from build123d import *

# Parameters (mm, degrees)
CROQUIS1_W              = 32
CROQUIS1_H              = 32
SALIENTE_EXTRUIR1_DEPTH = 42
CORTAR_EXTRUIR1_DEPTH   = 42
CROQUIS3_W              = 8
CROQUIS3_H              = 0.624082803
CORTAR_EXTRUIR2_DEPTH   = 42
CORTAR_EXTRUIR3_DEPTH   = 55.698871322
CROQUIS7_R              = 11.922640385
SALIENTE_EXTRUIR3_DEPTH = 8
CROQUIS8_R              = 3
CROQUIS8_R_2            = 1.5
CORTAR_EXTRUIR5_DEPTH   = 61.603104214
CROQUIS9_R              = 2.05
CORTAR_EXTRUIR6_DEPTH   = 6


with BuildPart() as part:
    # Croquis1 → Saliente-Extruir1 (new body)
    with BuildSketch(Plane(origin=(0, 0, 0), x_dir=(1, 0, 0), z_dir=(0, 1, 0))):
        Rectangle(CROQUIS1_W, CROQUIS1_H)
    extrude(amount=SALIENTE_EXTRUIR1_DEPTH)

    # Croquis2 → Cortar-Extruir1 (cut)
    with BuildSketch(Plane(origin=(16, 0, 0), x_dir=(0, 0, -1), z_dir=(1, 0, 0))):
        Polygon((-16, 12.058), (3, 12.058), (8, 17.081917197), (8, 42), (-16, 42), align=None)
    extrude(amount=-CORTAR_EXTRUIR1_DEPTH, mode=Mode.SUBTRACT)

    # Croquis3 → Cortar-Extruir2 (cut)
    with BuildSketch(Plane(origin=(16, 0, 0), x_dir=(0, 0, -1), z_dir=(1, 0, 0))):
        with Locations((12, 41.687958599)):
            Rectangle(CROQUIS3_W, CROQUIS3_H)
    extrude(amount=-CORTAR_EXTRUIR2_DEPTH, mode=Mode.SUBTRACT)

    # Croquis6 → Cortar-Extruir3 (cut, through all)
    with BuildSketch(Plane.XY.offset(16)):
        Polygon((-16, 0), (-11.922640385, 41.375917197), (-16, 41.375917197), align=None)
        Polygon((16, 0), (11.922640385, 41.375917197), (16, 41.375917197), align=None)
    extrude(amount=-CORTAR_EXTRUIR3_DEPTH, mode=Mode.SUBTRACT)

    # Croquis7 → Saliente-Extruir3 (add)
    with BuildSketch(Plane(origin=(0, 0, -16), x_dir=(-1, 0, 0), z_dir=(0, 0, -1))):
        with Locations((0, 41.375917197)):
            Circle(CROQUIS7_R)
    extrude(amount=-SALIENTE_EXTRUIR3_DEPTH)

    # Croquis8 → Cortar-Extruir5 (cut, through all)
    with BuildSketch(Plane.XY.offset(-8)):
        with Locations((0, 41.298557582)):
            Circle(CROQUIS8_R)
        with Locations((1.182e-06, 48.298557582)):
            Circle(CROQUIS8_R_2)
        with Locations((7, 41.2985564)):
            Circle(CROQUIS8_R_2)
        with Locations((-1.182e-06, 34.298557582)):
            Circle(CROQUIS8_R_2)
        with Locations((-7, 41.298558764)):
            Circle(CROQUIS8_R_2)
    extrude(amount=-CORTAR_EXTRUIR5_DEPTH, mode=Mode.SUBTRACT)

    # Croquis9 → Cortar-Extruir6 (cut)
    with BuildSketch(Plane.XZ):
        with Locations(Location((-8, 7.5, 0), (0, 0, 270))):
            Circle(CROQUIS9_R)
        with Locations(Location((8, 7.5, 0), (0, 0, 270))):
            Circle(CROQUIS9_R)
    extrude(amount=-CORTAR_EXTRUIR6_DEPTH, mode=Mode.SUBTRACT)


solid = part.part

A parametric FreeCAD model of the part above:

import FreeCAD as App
import Part
import Sketcher

doc = App.newDocument("Part")
body = doc.addObject("PartDesign::Body", "Body")

sketch1 = body.newObject("Sketcher::SketchObject", "Sketch")
sketch1.AttachmentSupport = (doc.getObject("XZ_Plane"), [""])
sketch1.MapMode = "FlatFace"
sketch1.addGeometry(Part.LineSegment(App.Vector(-16, -16, 0), App.Vector(-16, 16, 0)), False)
sketch1.addGeometry(Part.LineSegment(App.Vector(-16, 16, 0), App.Vector(16, 16, 0)), False)
sketch1.addGeometry(Part.LineSegment(App.Vector(16, 16, 0), App.Vector(16, -16, 0)), False)
sketch1.addGeometry(Part.LineSegment(App.Vector(16, -16, 0), App.Vector(-16, -16, 0)), False)
sketch1.addConstraint(Sketcher.Constraint("Coincident", 0, 2, 1, 1))
sketch1.addConstraint(Sketcher.Constraint("Coincident", 1, 2, 2, 1))
sketch1.addConstraint(Sketcher.Constraint("Coincident", 2, 2, 3, 1))
sketch1.addConstraint(Sketcher.Constraint("Coincident", 3, 2, 0, 1))
sketch1.addConstraint(Sketcher.Constraint("Vertical", 0))
sketch1.addConstraint(Sketcher.Constraint("Horizontal", 1))
sketch1.addConstraint(Sketcher.Constraint("Vertical", 2))
sketch1.addConstraint(Sketcher.Constraint("Horizontal", 3))
sketch1.addConstraint(Sketcher.Constraint("Symmetric", 0, 2, 2, 2, -1, 1))
sketch1.addConstraint(Sketcher.Constraint("Equal", 3, 0))
sketch1.addConstraint(Sketcher.Constraint("DistanceX", 1, 1, 1, 2, 32.0))
pad1 = body.newObject("PartDesign::Pad", "Pad")
pad1.Profile = sketch1
pad1.Length = 42
pad1.Reversed = True

sketch2 = body.newObject("Sketcher::SketchObject", "Sketch001")
sketch2.AttachmentSupport = (doc.getObject("YZ_Plane"), [""])
sketch2.MapMode = "FlatFace"
sketch2.AttachmentOffset = App.Placement(App.Vector(0, 0, 16), App.Rotation())
sketch2.addGeometry(Part.LineSegment(App.Vector(12, 16, 0), App.Vector(12, -3, 0)), False)
sketch2.addGeometry(Part.LineSegment(App.Vector(12, -3, 0), App.Vector(17, -8, 0)), False)
sketch2.addGeometry(Part.LineSegment(App.Vector(17, -8, 0), App.Vector(42, -8, 0)), False)
sketch2.addGeometry(Part.LineSegment(App.Vector(42, -8, 0), App.Vector(42, 16, 0)), False)
sketch2.addGeometry(Part.LineSegment(App.Vector(42, 16, 0), App.Vector(12, 16, 0)), False)
sketch2.addConstraint(Sketcher.Constraint("Coincident", 0, 2, 1, 1))
sketch2.addConstraint(Sketcher.Constraint("Coincident", 1, 2, 2, 1))
sketch2.addConstraint(Sketcher.Constraint("Coincident", 2, 2, 3, 1))
sketch2.addConstraint(Sketcher.Constraint("Coincident", 3, 2, 4, 1))
sketch2.addConstraint(Sketcher.Constraint("Coincident", 4, 2, 0, 1))
sketch2.addConstraint(Sketcher.Constraint("Vertical", 0))
sketch2.addConstraint(Sketcher.Constraint("Horizontal", 2))
sketch2.addConstraint(Sketcher.Constraint("Vertical", 3))
sketch2.addConstraint(Sketcher.Constraint("Horizontal", 4))
sketch2.addConstraint(Sketcher.Constraint("DistanceY", 0, 2, 0, 1, 19.0))
sketch2.addConstraint(Sketcher.Constraint("DistanceY", 3, 1, 3, 2, 24.0))
sketch2.addConstraint(Sketcher.Constraint("DistanceY", 0, 2, -1, 1, 3.0))
sketch2.addConstraint(Sketcher.Constraint("DistanceX", -1, 1, 2, 2, 42.0))
sketch2.addConstraint(Sketcher.Constraint("DistanceX", 4, 2, 4, 1, 29.942))
sketch2.addConstraint(Sketcher.Constraint("Distance", 1, 7.088))
pocket1 = body.newObject("PartDesign::Pocket", "Pocket")
pocket1.Profile = sketch2
pocket1.Length = 42

sketch3 = body.newObject("Sketcher::SketchObject", "Sketch002")
sketch3.AttachmentSupport = (doc.getObject("YZ_Plane"), [""])
sketch3.MapMode = "FlatFace"
sketch3.AttachmentOffset = App.Placement(App.Vector(0, 0, 16), App.Rotation())
sketch3.addGeometry(Part.LineSegment(App.Vector(42, -8, 0), App.Vector(41.4, -8, 0)), False)
sketch3.addGeometry(Part.LineSegment(App.Vector(41.4, -8, 0), App.Vector(41.4, -16, 0)), False)
sketch3.addGeometry(Part.LineSegment(App.Vector(41.4, -16, 0), App.Vector(42, -16, 0)), False)
sketch3.addGeometry(Part.LineSegment(App.Vector(42, -16, 0), App.Vector(42, -8, 0)), False)
sketch3.addConstraint(Sketcher.Constraint("Coincident", 0, 2, 1, 1))
sketch3.addConstraint(Sketcher.Constraint("Coincident", 1, 2, 2, 1))
sketch3.addConstraint(Sketcher.Constraint("Coincident", 2, 2, 3, 1))
sketch3.addConstraint(Sketcher.Constraint("Coincident", 3, 2, 0, 1))
sketch3.addConstraint(Sketcher.Constraint("Horizontal", 0))
sketch3.addConstraint(Sketcher.Constraint("Vertical", 1))
sketch3.addConstraint(Sketcher.Constraint("Horizontal", 2))
sketch3.addConstraint(Sketcher.Constraint("Vertical", 3))
sketch3.addConstraint(Sketcher.Constraint("DistanceY", 1, 2, 1, 1, 8.0))
sketch3.addConstraint(Sketcher.Constraint("DistanceY", 0, 2, -1, 1, 8.0))
sketch3.addConstraint(Sketcher.Constraint("DistanceX", -1, 1, 2, 2, 42.0))
sketch3.addConstraint(Sketcher.Constraint("DistanceX", 0, 2, 0, 1, 0.624083))
pocket2 = body.newObject("PartDesign::Pocket", "Pocket001")
pocket2.Profile = sketch3
pocket2.Length = 42

sketch4 = body.newObject("Sketcher::SketchObject", "Sketch003")
sketch4.AttachmentSupport = (doc.getObject("XY_Plane"), [""])
sketch4.MapMode = "FlatFace"
sketch4.AttachmentOffset = App.Placement(App.Vector(0, 0, 16), App.Rotation())
sketch4.addGeometry(Part.LineSegment(App.Vector(-16, 0, 0), App.Vector(-11.9, 41.4, 0)), False)
sketch4.addGeometry(Part.LineSegment(App.Vector(-11.9, 41.4, 0), App.Vector(-16, 41.4, 0)), False)
sketch4.addGeometry(Part.LineSegment(App.Vector(-16, 41.4, 0), App.Vector(-16, 0, 0)), False)
sketch4.addGeometry(Part.LineSegment(App.Vector(11.9, 41.4, 0), App.Vector(16, 0, 0)), False)
sketch4.addGeometry(Part.LineSegment(App.Vector(16, 0, 0), App.Vector(16, 41.4, 0)), False)
sketch4.addGeometry(Part.LineSegment(App.Vector(16, 41.4, 0), App.Vector(11.9, 41.4, 0)), False)
sketch4.addConstraint(Sketcher.Constraint("Coincident", 0, 2, 1, 1))
sketch4.addConstraint(Sketcher.Constraint("Coincident", 1, 2, 2, 1))
sketch4.addConstraint(Sketcher.Constraint("Coincident", 2, 2, 0, 1))
sketch4.addConstraint(Sketcher.Constraint("Coincident", 3, 2, 4, 1))
sketch4.addConstraint(Sketcher.Constraint("Coincident", 4, 2, 5, 1))
sketch4.addConstraint(Sketcher.Constraint("Coincident", 5, 2, 3, 1))
sketch4.addConstraint(Sketcher.Constraint("Horizontal", 1))
sketch4.addConstraint(Sketcher.Constraint("Vertical", 2))
sketch4.addConstraint(Sketcher.Constraint("Vertical", 4))
sketch4.addConstraint(Sketcher.Constraint("Horizontal", 5))
sketch4.addConstraint(Sketcher.Constraint("Symmetric", 2, 2, 3, 2, -1, 1))
sketch4.addConstraint(Sketcher.Constraint("Symmetric", 0, 2, 5, 2, -2))
sketch4.addConstraint(Sketcher.Constraint("PointOnObject", 2, 2, -1))
sketch4.addConstraint(Sketcher.Constraint("DistanceX", 1, 2, -1, 1, 16.0))
sketch4.addConstraint(Sketcher.Constraint("DistanceX", 1, 2, 1, 1, 4.07736))
sketch4.addConstraint(Sketcher.Constraint("DistanceY", 2, 2, 2, 1, 41.375917))
pocket3 = body.newObject("PartDesign::Pocket", "Pocket002")
pocket3.Profile = sketch4
pocket3.Type = "ThroughAll"

sketch5 = body.newObject("Sketcher::SketchObject", "Sketch004")
sketch5.AttachmentSupport = (doc.getObject("XY_Plane"), [""])
sketch5.MapMode = "FlatFace"
sketch5.AttachmentOffset = App.Placement(App.Vector(0, 0, -16), App.Rotation())
sketch5.addGeometry(Part.Circle(App.Vector(0, 41, 0), App.Vector(0, 0, 1), 12), False)
sketch5.addConstraint(Sketcher.Constraint("PointOnObject", 0, 3, -2))
sketch5.addConstraint(Sketcher.Constraint("Diameter", 0, 23.845281))
sketch5.addConstraint(Sketcher.Constraint("DistanceY", -1, 1, 0, 3, 41.375917))
pad2 = body.newObject("PartDesign::Pad", "Pad001")
pad2.Profile = sketch5
pad2.Length = 8

sketch6 = body.newObject("Sketcher::SketchObject", "Sketch005")
sketch6.AttachmentSupport = (doc.getObject("XY_Plane"), [""])
sketch6.MapMode = "FlatFace"
sketch6.AttachmentOffset = App.Placement(App.Vector(0, 0, -8), App.Rotation())
sketch6.addGeometry(Part.Circle(App.Vector(0, 41.3, 0), App.Vector(0, 0, 1), 3), False)
sketch6.addGeometry(Part.Circle(App.Vector(0, 48.3, 0), App.Vector(0, 0, 1), 1.5), False)
sketch6.addGeometry(Part.Circle(App.Vector(7, 41.3, 0), App.Vector(0, 0, 1), 1.5), False)
sketch6.addGeometry(Part.Circle(App.Vector(0, 34.3, 0), App.Vector(0, 0, 1), 1.5), False)
sketch6.addGeometry(Part.Circle(App.Vector(-7, 41.3, 0), App.Vector(0, 0, 1), 1.5), False)
sketch6.addConstraint(Sketcher.Constraint("Equal", 1, 2))
sketch6.addConstraint(Sketcher.Constraint("Equal", 2, 3))
sketch6.addConstraint(Sketcher.Constraint("Equal", 3, 4))
sketch6.addConstraint(Sketcher.Constraint("Symmetric", 2, 3, 4, 3, -2))
sketch6.addConstraint(Sketcher.Constraint("PointOnObject", 0, 3, -2))
sketch6.addConstraint(Sketcher.Constraint("PointOnObject", 1, 3, -2))
sketch6.addConstraint(Sketcher.Constraint("PointOnObject", 3, 3, -2))
sketch6.addConstraint(Sketcher.Constraint("Horizontal", 0, 3, 2, 3))
sketch6.addConstraint(Sketcher.Constraint("Diameter", 0, 6.0))
sketch6.addConstraint(Sketcher.Constraint("Diameter", 1, 3.0))
sketch6.addConstraint(Sketcher.Constraint("DistanceX", -1, 1, 2, 3, 7.0))
sketch6.addConstraint(Sketcher.Constraint("DistanceY", 0, 3, 1, 3, 7.0))
sketch6.addConstraint(Sketcher.Constraint("DistanceY", 3, 3, 0, 3, 7.0))
sketch6.addConstraint(Sketcher.Constraint("DistanceY", -1, 1, 4, 3, 41.298559))
pocket4 = body.newObject("PartDesign::Pocket", "Pocket003")
pocket4.Profile = sketch6
pocket4.Type = "ThroughAll"

sketch7 = body.newObject("Sketcher::SketchObject", "Sketch006")
sketch7.AttachmentSupport = (doc.getObject("XZ_Plane"), [""])
sketch7.MapMode = "FlatFace"
sketch7.addGeometry(Part.Circle(App.Vector(-8, 7.5, 0), App.Vector(0, 0, 1), 2), False)
sketch7.addGeometry(Part.Circle(App.Vector(8, 7.5, 0), App.Vector(0, 0, 1), 2), False)
sketch7.addConstraint(Sketcher.Constraint("Equal", 0, 1))
sketch7.addConstraint(Sketcher.Constraint("Symmetric", 0, 3, 1, 3, -2))
sketch7.addConstraint(Sketcher.Constraint("Diameter", 0, 4.1))
sketch7.addConstraint(Sketcher.Constraint("DistanceX", 0, 3, -1, 1, 8.0))
sketch7.addConstraint(Sketcher.Constraint("DistanceY", -1, 1, 0, 3, 7.5))
pocket5 = body.newObject("PartDesign::Pocket", "Pocket004")
pocket5.Profile = sketch7
pocket5.Length = 6

doc.recompute()
